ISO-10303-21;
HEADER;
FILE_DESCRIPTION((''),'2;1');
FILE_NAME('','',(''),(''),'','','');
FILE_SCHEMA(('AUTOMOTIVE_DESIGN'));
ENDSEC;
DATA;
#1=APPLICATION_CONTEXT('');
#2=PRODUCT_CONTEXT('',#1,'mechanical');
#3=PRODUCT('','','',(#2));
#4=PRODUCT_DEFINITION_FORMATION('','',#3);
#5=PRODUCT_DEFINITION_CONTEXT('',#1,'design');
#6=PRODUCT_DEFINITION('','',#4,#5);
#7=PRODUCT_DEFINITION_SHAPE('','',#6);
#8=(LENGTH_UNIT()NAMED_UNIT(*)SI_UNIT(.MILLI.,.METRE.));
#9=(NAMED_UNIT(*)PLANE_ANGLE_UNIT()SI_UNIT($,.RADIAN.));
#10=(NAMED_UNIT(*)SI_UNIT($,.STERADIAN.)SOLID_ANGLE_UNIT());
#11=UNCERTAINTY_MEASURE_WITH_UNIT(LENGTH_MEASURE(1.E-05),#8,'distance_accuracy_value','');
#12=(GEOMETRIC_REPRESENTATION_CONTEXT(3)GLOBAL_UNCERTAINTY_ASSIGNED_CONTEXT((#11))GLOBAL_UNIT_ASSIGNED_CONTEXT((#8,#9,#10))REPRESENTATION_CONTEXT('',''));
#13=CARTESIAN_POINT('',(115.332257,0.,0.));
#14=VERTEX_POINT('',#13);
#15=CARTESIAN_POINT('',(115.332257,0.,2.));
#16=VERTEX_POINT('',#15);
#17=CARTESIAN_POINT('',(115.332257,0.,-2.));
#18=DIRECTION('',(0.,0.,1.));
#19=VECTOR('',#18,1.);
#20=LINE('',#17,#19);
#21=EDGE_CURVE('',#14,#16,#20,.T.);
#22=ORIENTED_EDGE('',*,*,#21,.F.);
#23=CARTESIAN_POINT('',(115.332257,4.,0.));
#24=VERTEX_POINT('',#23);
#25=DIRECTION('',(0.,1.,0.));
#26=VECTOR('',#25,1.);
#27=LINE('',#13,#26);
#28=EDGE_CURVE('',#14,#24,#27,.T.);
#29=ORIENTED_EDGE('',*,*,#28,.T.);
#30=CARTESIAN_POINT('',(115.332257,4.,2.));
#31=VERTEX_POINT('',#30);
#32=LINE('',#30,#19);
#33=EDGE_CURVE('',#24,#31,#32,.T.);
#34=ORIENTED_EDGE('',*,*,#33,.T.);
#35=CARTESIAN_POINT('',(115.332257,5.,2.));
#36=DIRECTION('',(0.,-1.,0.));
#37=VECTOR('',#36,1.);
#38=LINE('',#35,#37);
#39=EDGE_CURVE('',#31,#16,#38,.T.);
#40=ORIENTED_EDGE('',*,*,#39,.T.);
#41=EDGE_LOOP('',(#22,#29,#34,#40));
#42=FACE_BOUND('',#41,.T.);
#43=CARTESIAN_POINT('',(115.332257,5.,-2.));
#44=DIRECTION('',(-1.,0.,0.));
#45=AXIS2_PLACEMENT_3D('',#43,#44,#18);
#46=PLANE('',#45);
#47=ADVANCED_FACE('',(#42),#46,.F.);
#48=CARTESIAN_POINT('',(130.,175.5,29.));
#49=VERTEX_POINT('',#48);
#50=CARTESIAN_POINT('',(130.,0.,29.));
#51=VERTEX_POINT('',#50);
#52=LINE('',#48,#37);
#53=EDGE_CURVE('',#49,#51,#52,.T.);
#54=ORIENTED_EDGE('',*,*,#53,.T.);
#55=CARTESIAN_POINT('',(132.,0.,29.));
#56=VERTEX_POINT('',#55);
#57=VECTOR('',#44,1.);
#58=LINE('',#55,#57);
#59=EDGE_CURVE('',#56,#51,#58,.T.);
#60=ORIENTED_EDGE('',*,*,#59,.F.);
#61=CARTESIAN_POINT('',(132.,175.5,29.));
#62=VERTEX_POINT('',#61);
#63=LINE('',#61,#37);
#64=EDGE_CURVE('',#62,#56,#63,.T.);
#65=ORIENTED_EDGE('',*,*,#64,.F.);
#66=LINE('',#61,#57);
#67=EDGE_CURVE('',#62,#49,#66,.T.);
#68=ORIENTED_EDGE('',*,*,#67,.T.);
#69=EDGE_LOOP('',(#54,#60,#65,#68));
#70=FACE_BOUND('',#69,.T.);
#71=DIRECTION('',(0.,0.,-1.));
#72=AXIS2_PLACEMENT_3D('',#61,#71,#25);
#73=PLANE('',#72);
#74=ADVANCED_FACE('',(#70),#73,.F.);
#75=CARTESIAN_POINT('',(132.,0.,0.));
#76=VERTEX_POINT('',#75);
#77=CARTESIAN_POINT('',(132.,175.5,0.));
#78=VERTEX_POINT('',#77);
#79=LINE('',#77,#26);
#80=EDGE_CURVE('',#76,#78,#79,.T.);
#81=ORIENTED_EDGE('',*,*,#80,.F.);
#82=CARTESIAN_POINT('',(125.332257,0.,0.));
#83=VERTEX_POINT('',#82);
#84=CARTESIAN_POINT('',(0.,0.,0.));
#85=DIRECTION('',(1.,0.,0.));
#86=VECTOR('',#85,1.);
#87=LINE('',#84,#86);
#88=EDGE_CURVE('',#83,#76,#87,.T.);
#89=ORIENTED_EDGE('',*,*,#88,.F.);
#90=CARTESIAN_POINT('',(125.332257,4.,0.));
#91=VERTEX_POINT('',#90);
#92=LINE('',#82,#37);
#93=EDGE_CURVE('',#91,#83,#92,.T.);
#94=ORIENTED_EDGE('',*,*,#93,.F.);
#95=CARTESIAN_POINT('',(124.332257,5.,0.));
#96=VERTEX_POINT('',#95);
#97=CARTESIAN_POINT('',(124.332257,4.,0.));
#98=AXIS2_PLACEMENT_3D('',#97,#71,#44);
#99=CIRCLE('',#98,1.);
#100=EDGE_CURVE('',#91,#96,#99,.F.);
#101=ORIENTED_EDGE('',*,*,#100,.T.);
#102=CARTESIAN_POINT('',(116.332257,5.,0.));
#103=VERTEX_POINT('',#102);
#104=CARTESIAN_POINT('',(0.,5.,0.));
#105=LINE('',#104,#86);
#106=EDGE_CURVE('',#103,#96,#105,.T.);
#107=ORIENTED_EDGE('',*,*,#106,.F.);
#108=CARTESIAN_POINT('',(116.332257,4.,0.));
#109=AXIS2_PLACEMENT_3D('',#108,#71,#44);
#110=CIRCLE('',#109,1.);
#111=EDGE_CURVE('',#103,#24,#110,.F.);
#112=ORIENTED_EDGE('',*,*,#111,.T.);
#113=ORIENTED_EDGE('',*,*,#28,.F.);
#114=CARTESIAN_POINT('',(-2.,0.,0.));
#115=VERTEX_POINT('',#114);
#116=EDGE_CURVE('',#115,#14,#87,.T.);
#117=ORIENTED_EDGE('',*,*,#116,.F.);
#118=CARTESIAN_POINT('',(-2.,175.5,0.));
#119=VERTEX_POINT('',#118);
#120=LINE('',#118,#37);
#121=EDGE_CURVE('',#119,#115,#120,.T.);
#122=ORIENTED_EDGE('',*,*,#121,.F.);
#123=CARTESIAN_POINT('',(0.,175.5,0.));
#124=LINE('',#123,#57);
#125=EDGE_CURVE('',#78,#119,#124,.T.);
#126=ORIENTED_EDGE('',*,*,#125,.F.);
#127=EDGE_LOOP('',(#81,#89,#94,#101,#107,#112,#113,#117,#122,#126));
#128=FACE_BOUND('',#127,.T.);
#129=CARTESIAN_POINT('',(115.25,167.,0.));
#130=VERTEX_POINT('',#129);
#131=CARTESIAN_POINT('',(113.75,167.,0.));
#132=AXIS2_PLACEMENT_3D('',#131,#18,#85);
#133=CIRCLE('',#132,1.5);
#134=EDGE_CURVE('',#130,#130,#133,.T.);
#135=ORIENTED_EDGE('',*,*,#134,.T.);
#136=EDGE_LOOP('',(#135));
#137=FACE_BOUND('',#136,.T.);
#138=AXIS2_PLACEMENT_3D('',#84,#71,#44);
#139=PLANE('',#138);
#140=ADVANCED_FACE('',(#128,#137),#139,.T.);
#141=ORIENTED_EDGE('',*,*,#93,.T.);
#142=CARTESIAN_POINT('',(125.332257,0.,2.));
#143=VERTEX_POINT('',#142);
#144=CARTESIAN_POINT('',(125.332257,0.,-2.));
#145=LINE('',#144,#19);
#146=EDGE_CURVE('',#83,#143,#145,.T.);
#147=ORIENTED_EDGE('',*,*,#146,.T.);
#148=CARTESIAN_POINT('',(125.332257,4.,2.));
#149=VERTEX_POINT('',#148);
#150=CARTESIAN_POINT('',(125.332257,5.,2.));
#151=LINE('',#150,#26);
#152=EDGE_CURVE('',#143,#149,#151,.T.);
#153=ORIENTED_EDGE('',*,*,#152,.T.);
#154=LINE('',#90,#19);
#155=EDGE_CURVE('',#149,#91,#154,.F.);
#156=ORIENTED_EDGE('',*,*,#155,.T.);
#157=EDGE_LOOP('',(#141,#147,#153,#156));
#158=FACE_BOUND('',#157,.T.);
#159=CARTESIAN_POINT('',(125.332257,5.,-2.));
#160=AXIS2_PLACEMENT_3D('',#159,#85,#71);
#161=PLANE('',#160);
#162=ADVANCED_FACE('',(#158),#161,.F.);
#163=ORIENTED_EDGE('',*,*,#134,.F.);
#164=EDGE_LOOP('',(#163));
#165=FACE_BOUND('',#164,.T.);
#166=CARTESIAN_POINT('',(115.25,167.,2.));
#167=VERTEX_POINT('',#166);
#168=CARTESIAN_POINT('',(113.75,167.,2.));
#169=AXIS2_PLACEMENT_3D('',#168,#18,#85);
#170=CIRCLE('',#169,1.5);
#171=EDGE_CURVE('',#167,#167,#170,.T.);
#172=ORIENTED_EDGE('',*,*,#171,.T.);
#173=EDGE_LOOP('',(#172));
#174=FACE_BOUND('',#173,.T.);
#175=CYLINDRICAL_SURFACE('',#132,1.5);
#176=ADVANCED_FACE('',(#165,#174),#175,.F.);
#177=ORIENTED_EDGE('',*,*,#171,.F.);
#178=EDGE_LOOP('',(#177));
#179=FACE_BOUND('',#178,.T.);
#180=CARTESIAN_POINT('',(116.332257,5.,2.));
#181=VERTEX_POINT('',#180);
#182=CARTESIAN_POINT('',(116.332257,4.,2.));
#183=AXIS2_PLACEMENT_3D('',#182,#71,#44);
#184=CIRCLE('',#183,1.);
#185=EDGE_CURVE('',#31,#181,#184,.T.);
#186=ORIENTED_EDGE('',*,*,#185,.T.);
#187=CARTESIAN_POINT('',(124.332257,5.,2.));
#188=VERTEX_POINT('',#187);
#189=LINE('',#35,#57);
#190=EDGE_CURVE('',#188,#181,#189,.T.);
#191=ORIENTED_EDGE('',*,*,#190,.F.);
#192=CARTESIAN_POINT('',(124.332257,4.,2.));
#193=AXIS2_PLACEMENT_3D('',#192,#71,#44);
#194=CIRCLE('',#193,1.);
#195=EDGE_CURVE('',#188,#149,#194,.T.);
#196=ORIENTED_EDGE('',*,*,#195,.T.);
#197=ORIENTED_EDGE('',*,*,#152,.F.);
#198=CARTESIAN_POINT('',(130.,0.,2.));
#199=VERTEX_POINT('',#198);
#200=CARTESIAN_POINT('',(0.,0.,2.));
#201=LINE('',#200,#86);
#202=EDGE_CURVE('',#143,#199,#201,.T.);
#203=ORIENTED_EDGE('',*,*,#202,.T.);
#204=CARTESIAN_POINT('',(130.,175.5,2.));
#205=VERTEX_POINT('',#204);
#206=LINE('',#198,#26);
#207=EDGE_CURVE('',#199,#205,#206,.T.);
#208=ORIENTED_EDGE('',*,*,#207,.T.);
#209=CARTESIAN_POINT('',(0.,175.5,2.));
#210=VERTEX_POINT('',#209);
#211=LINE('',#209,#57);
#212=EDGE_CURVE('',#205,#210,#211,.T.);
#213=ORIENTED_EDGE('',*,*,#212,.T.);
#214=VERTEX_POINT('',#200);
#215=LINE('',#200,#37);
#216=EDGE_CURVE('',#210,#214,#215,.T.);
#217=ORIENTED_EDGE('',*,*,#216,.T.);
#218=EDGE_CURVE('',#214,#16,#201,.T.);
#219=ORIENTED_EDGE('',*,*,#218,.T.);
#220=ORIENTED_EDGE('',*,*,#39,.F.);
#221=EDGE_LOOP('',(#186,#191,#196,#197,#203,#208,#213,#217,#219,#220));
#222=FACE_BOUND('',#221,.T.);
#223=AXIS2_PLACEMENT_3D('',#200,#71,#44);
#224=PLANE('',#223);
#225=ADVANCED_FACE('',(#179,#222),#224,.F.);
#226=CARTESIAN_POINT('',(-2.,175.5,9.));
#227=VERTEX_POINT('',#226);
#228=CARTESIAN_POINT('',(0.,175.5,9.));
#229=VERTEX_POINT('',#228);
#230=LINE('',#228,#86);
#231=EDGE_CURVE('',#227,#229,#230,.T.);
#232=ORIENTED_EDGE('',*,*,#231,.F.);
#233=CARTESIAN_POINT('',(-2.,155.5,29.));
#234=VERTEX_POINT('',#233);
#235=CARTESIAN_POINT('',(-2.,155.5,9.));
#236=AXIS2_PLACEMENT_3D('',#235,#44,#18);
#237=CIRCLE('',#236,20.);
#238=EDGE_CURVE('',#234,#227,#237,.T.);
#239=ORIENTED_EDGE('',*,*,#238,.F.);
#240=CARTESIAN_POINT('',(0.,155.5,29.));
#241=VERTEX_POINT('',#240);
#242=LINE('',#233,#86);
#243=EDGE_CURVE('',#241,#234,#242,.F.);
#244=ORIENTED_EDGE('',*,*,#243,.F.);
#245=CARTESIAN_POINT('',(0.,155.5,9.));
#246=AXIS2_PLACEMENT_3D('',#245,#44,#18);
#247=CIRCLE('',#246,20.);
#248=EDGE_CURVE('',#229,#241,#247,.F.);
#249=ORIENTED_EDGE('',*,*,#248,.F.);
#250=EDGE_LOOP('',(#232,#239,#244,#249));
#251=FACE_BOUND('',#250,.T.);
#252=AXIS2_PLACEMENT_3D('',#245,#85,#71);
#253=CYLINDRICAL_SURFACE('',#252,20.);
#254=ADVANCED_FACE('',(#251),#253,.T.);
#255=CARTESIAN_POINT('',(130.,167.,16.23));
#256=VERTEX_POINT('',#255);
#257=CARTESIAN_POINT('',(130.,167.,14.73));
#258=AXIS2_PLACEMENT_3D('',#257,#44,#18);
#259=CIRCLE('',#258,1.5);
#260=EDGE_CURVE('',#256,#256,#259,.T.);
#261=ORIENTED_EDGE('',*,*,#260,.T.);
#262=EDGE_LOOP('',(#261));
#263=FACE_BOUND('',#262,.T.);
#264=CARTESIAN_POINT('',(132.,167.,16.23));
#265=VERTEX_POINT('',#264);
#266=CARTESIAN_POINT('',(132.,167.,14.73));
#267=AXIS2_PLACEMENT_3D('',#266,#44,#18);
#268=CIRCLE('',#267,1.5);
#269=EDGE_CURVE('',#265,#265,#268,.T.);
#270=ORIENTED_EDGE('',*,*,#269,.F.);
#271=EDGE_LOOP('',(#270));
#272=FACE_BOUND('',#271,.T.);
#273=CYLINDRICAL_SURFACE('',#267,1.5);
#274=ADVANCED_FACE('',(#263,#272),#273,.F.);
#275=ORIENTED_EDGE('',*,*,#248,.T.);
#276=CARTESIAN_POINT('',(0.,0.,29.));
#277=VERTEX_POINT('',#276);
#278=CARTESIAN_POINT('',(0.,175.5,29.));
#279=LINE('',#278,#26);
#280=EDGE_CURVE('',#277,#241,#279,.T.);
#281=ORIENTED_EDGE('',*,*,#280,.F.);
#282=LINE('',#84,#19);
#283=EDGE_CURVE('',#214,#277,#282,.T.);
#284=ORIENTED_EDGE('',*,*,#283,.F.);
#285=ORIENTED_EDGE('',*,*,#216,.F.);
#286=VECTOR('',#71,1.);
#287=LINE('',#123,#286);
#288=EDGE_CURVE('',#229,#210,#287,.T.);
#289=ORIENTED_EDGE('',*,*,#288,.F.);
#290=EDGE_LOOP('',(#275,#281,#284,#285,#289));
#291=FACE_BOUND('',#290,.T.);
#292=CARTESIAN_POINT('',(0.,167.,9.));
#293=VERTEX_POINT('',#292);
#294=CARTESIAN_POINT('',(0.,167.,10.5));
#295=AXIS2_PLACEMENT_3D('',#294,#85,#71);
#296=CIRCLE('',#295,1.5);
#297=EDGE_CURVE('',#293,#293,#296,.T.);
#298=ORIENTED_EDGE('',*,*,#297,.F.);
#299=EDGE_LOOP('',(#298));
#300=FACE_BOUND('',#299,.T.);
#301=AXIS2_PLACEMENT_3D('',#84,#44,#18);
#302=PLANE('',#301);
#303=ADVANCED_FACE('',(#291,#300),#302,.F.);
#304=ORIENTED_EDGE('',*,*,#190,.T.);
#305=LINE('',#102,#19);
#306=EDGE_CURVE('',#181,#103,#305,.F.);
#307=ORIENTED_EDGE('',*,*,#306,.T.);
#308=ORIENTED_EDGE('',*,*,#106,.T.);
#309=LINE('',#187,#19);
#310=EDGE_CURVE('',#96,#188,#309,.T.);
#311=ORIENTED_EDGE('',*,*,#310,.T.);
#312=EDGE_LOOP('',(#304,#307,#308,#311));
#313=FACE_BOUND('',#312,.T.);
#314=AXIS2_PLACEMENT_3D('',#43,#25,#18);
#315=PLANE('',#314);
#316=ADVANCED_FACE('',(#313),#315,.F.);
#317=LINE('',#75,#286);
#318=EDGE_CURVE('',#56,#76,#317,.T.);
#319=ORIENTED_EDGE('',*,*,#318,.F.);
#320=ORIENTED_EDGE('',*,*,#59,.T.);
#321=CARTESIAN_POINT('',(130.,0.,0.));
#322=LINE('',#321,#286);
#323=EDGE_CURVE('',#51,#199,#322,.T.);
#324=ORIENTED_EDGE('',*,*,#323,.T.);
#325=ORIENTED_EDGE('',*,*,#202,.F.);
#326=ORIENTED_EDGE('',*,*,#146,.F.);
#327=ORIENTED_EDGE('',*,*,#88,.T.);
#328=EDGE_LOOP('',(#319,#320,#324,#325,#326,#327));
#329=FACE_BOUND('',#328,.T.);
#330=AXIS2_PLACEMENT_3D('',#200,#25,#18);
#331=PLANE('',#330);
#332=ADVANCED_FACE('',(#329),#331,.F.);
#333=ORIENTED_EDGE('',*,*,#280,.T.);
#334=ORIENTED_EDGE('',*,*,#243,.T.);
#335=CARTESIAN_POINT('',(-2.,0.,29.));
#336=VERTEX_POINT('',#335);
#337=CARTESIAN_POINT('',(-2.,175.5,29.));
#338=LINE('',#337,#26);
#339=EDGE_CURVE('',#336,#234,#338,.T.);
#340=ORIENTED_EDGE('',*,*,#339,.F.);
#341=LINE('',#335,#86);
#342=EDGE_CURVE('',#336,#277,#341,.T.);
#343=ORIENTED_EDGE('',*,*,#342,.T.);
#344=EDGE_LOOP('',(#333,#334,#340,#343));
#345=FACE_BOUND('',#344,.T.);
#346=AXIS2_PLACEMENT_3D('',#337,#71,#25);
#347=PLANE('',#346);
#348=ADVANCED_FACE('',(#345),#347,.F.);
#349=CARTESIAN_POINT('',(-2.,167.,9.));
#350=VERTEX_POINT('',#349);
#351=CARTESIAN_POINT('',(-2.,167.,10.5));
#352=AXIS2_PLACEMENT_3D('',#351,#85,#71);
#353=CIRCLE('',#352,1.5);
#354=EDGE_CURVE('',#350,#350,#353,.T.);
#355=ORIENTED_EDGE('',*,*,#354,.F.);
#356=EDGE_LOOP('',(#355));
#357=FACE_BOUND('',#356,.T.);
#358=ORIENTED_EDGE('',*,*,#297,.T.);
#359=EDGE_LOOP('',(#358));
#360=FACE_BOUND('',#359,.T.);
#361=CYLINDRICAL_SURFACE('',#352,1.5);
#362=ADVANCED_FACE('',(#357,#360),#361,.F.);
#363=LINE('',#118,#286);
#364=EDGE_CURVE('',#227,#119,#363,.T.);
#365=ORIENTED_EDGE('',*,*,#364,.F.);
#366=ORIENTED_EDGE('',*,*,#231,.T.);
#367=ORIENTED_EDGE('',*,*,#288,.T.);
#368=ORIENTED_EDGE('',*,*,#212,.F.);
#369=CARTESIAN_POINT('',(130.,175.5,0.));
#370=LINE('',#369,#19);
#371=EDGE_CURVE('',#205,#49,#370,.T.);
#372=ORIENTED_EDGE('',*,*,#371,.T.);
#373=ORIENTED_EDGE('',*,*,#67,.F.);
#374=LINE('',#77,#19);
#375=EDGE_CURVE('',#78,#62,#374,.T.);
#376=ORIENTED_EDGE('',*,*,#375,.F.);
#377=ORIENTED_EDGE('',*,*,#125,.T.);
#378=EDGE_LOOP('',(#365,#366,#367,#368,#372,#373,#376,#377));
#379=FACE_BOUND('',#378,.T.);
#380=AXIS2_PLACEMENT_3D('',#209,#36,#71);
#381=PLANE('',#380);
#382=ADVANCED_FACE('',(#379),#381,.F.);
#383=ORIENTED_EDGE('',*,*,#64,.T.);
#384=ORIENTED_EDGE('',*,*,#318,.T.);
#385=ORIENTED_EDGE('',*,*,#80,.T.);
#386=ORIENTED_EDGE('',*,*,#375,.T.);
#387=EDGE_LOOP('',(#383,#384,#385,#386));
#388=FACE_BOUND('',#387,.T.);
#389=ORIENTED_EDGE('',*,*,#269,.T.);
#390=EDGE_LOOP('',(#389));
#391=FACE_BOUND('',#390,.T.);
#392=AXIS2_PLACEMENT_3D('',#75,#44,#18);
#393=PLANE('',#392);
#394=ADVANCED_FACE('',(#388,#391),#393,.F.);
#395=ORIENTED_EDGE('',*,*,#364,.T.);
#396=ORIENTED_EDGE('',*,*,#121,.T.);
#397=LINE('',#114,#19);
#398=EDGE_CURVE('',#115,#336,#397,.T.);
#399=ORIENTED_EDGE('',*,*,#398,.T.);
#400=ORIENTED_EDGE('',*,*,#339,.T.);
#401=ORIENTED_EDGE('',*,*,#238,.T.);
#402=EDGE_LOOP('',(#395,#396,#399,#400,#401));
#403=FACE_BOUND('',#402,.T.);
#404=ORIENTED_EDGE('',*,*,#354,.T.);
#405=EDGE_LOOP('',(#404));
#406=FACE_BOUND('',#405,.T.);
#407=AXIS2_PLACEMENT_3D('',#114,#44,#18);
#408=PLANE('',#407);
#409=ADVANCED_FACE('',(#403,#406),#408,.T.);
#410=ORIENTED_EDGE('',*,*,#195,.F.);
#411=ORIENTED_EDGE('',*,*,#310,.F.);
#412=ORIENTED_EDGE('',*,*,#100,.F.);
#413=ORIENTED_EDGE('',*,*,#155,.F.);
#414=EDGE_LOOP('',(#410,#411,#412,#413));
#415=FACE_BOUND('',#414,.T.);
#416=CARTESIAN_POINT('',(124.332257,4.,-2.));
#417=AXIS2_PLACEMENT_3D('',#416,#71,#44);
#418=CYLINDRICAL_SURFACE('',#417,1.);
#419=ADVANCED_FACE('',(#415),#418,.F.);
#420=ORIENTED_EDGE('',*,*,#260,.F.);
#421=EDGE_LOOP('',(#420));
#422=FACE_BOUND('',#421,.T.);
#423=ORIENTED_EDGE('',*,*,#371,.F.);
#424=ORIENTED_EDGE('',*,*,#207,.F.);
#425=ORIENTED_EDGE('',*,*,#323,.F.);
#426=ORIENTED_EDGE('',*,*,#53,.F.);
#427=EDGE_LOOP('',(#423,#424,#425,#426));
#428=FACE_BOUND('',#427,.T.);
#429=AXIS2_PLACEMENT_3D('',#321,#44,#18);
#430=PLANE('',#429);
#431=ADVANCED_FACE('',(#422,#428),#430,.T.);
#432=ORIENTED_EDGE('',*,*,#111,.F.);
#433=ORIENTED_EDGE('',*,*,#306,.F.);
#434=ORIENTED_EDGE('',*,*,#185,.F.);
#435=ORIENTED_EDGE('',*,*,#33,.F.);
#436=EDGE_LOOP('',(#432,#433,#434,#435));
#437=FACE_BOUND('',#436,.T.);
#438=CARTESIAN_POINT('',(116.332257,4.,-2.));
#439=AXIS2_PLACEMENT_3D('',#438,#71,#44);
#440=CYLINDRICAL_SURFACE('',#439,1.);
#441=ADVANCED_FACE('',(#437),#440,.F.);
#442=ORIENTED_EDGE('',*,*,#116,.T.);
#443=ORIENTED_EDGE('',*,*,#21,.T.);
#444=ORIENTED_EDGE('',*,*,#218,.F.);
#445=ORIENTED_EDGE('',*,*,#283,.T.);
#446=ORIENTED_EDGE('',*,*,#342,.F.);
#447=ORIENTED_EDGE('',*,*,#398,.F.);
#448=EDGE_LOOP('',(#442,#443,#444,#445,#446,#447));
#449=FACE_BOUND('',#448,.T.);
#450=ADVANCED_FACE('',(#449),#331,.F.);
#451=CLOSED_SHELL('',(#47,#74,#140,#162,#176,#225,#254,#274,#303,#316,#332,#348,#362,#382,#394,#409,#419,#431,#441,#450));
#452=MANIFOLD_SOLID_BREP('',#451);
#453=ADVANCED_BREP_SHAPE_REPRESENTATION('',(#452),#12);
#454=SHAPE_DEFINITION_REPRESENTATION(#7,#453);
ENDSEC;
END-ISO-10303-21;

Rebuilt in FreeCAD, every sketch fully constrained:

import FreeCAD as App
import Part
import Sketcher
from FreeCAD import Vector
Q = App.Units.Quantity


def edges_at(feature, points):
    """Names of the edges that pass closest to the given points."""
    edges = feature.Shape.Edges
    near = lambda p: min(range(len(edges)), key=lambda i: edges[i].distToShape(Part.Vertex(*p))[0])
    return sorted({f"Edge{near(p) + 1}" for p in points})


def add_polygon(sketch, points):
    """Adds a closed chain of lines whose ends are joined by coincident constraints."""
    first, n = sketch.GeometryCount, len(points)
    for a, b in zip(points, points[1:] + points[:1]):
        sketch.addGeometry(Part.LineSegment(App.Vector(*a, 0), App.Vector(*b, 0)), False)
    for i in range(n):
        sketch.addConstraint(Sketcher.Constraint("Coincident", first + i, 2, first + (i + 1) % n, 1))

doc = App.newDocument("Part")
body = doc.addObject("PartDesign::Body", "Body")

# Sketch on XY plane
sketch1 = body.newObject("Sketcher::SketchObject", "Sketch")
sketch1.AttachmentSupport = (doc.getObject("XY_Plane"), [""])
sketch1.MapMode = "FlatFace"
add_polygon(sketch1, [(0, 175.5), (0, 0), (130, 0), (130, 175.5)])  # lines 0-3
sketch1.addConstraint([
    Sketcher.Constraint("Vertical", 0),
    Sketcher.Constraint("Horizontal", 1),
    Sketcher.Constraint("Vertical", 2),
    Sketcher.Constraint("Horizontal", 3),
    Sketcher.Constraint("Coincident", 0, 2, -1, 1),
    Sketcher.Constraint("DistanceX", 1, 1, 1, 2, Q("130 mm")),
    Sketcher.Constraint("DistanceY", 0, 2, 0, 1, Q("175.5 mm")),
])
pad1 = body.newObject("PartDesign::Pad", "Pad")
pad1.Profile = sketch1
pad1.Length = 2

# Sketch on YZ plane
sketch2 = body.newObject("Sketcher::SketchObject", "Sketch001")
sketch2.AttachmentSupport = (doc.getObject("YZ_Plane"), [""])
sketch2.MapMode = "FlatFace"
sketch2.AttachmentOffset = App.Placement(Vector(0, 0, 130), App.Rotation())
add_polygon(sketch2, [(175.5, 29), (0, 29), (0, 0), (175.5, 0)])  # lines 0-3
sketch2.addConstraint([
    Sketcher.Constraint("Horizontal", 0),
    Sketcher.Constraint("Vertical", 1),
    Sketcher.Constraint("Horizontal", 2),
    Sketcher.Constraint("Vertical", 3),
    Sketcher.Constraint("Coincident", 1, 2, -1, 1),
    Sketcher.Constraint("DistanceY", 1, 2, 1, 1, Q("29 mm")),
    Sketcher.Constraint("DistanceX", 0, 2, 0, 1, Q("175.5 mm")),
])
pad2 = body.newObject("PartDesign::Pad", "Pad001")
pad2.Profile = sketch2
pad2.Length = 2

# Sketch on YZ plane
sketch3 = body.newObject("Sketcher::SketchObject", "Sketch002")
sketch3.AttachmentSupport = (doc.getObject("YZ_Plane"), [""])
sketch3.MapMode = "FlatFace"
add_polygon(sketch3, [(175.5, 0), (0, 0), (0, 29), (175.5, 29)])  # lines 0-3
sketch3.addConstraint([
    Sketcher.Constraint("Horizontal", 0),
    Sketcher.Constraint("Vertical", 1),
    Sketcher.Constraint("Horizontal", 2),
    Sketcher.Constraint("Vertical", 3),
    Sketcher.Constraint("Coincident", 0, 2, -1, 1),
    Sketcher.Constraint("DistanceY", 1, 1, 1, 2, Q("29 mm")),
    Sketcher.Constraint("DistanceX", 0, 2, 0, 1, Q("175.5 mm")),
])
pad3 = body.newObject("PartDesign::Pad", "Pad002")
pad3.Profile = sketch3
pad3.Length = 2
pad3.Reversed = True

# Sketch on XY plane
sketch4 = body.newObject("Sketcher::SketchObject", "Sketch003")
sketch4.AttachmentSupport = (doc.getObject("XY_Plane"), [""])
sketch4.MapMode = "FlatFace"
sketch4.AttachmentOffset = App.Placement(Vector(0, 0, 2), App.Rotation())
add_polygon(sketch4, [(115.332257, 5), (115.332257, 0), (125.332257, 0), (125.332257, 5)])  # lines 0-3
sketch4.addConstraint([
    Sketcher.Constraint("Vertical", 0),
    Sketcher.Constraint("Horizontal", 1),
    Sketcher.Constraint("Vertical", 2),
    Sketcher.Constraint("Horizontal", 3),
    Sketcher.Constraint("PointOnObject", 0, 2, -1),
    Sketcher.Constraint("DistanceX", 1, 1, 1, 2, Q("10 mm")),
    Sketcher.Constraint("DistanceY", 0, 2, 0, 1, Q("5 mm")),
    Sketcher.Constraint("DistanceX", -1, 1, 0, 2, Q("115.332257 mm")),
])
pocket1 = body.newObject("PartDesign::Pocket", "Pocket")
pocket1.Profile = sketch4
pocket1.Length = 4
doc.recompute()

fillet = body.newObject("PartDesign::Fillet", "Fillet")
fillet.Base = (pocket1, edges_at(pocket1, [(-1, 175.5, 29)]))
fillet.Radius = 20
doc.recompute()

fillet2 = body.newObject("PartDesign::Fillet", "Fillet001")
fillet2.Base = (fillet, edges_at(fillet, [(115.332, 5, 1), (125.332, 5, 1)]))
fillet2.Radius = 1

# Sketch on YZ plane
sketch5 = body.newObject("Sketcher::SketchObject", "Sketch004")
sketch5.AttachmentSupport = (doc.getObject("YZ_Plane"), [""])
sketch5.MapMode = "FlatFace"
sketch5.AttachmentOffset = App.Placement(Vector(0, 0, 130), App.Rotation())
sketch5.addGeometry(Part.Circle(Vector(167, 14.73, 0), Vector(0, 0, 1), 1.5), False)
sketch5.addConstraint([
    Sketcher.Constraint("Diameter", 0, Q("3 mm")),
    Sketcher.Constraint("DistanceX", -1, 1, 0, 3, Q("167 mm")),
    Sketcher.Constraint("DistanceY", -1, 1, 0, 3, Q("14.73 mm")),
])
pocket2 = body.newObject("PartDesign::Pocket", "Pocket001")
pocket2.Profile = sketch5
pocket2.Length = 2
pocket2.Reversed = True

# Sketch on XY plane
sketch6 = body.newObject("Sketcher::SketchObject", "Sketch005")
sketch6.AttachmentSupport = (doc.getObject("XY_Plane"), [""])
sketch6.MapMode = "FlatFace"
sketch6.AttachmentOffset = App.Placement(Vector(0, 0, 2), App.Rotation())
sketch6.addGeometry(Part.Circle(Vector(113.75, 167, 0), Vector(0, 0, 1), 1.5), False)
sketch6.addConstraint([
    Sketcher.Constraint("Diameter", 0, Q("3 mm")),
    Sketcher.Constraint("DistanceY", -1, 1, 0, 3, Q("167 mm")),
    Sketcher.Constraint("DistanceX", -1, 1, 0, 3, Q("113.75 mm")),
])
pocket3 = body.newObject("PartDesign::Pocket", "Pocket002")
pocket3.Profile = sketch6
pocket3.Length = 2

# Sketch on YZ plane
sketch7 = body.newObject("Sketcher::SketchObject", "Sketch006")
sketch7.AttachmentSupport = (doc.getObject("YZ_Plane"), [""])
sketch7.MapMode = "FlatFace"
sketch7.addGeometry(Part.Circle(Vector(167, 10.5, 0), Vector(0, 0, 1), 1.5), False)
sketch7.addConstraint([
    Sketcher.Constraint("Diameter", 0, Q("3 mm")),
    Sketcher.Constraint("DistanceX", -1, 1, 0, 3, Q("167 mm")),
    Sketcher.Constraint("DistanceY", -1, 1, 0, 3, Q("10.5 mm")),
])
pocket4 = body.newObject("PartDesign::Pocket", "Pocket003")
pocket4.Profile = sketch7
pocket4.Length = 2

doc.recompute()
